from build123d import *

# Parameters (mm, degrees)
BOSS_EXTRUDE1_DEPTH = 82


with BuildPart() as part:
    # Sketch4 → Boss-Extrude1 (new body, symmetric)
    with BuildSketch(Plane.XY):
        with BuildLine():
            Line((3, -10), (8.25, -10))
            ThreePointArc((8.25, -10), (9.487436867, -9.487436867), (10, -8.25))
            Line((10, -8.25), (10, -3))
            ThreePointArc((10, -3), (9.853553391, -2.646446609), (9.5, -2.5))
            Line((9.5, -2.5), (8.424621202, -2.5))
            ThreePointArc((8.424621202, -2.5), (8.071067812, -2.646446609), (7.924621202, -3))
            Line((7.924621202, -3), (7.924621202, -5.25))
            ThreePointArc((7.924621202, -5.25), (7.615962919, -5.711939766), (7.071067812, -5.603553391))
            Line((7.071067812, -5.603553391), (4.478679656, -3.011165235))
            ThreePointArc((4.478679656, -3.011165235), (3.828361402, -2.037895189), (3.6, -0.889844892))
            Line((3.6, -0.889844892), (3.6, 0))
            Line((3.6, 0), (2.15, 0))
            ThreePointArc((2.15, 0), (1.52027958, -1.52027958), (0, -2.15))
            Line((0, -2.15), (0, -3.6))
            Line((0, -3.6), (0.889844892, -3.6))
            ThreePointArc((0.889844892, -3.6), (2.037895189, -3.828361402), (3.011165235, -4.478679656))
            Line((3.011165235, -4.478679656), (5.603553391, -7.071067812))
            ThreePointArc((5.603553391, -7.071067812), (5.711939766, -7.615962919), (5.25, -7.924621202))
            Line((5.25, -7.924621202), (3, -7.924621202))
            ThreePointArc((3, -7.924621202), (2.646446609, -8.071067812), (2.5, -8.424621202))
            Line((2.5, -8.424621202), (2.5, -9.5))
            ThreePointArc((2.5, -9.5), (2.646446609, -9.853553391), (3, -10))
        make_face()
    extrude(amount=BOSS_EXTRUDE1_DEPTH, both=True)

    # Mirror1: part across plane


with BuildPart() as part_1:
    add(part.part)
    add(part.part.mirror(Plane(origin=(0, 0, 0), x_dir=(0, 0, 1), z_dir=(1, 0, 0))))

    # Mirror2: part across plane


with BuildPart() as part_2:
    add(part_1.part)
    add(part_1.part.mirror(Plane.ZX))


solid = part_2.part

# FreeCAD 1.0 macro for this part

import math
import FreeCAD as App
import Part
import Sketcher
Q = App.Units.Quantity

doc = App.newDocument("Part")
body = doc.addObject("PartDesign::Body", "Body")

sketch1 = body.newObject("Sketcher::SketchObject", "Sketch")
sketch1.AttachmentSupport = (doc.getObject("XY_Plane"), [""])
sketch1.MapMode = "FlatFace"
sketch1.addGeometry(Part.LineSegment(App.Vector(3, -10, 0), App.Vector(8.25, -10, 0)), False)
sketch1.addGeometry(Part.ArcOfCircle(Part.Circle(App.Vector(8.25, -8.25, 0), App.Vector(0, 0, 1), 1.75), math.radians(-90), math.radians(0)), False)
sketch1.addGeometry(Part.LineSegment(App.Vector(10, -8.25, 0), App.Vector(10, -3, 0)), False)
sketch1.addGeometry(Part.ArcOfCircle(Part.Circle(App.Vector(9.5, -3, 0), App.Vector(0, 0, 1), 0.5), math.radians(0), math.radians(90)), False)
sketch1.addGeometry(Part.LineSegment(App.Vector(9.5, -2.5, 0), App.Vector(8.42, -2.5, 0)), False)
sketch1.addGeometry(Part.ArcOfCircle(Part.Circle(App.Vector(8.42, -3, 0), App.Vector(0, 0, 1), 0.5), math.radians(90), math.radians(180)), False)
sketch1.addGeometry(Part.LineSegment(App.Vector(7.92, -3, 0), App.Vector(7.92, -5.25, 0)), False)
sketch1.addGeometry(Part.ArcOfCircle(Part.Circle(App.Vector(7.42, -5.25, 0), App.Vector(0, 0, 1), 0.5), math.radians(-135), math.radians(0)), False)
sketch1.addGeometry(Part.LineSegment(App.Vector(7.07, -5.6, 0), App.Vector(4.48, -3.01, 0)), False)
sketch1.addGeometry(Part.ArcOfCircle(Part.Circle(App.Vector(6.6, -0.89, 0), App.Vector(0, 0, 1), 3), math.radians(180), math.radians(225)), False)
sketch1.addGeometry(Part.LineSegment(App.Vector(3.6, -0.89, 0), App.Vector(3.6, 0, 0)), False)
sketch1.addGeometry(Part.LineSegment(App.Vector(3.6, 0, 0), App.Vector(2.15, 0, 0)), False)
sketch1.addGeometry(Part.ArcOfCircle(Part.Circle(App.Vector(0, 0, 0), App.Vector(0, 0, 1), 2.15), math.radians(-90), math.radians(0)), False)
sketch1.addGeometry(Part.LineSegment(App.Vector(0, -2.15, 0), App.Vector(0, -3.6, 0)), False)
sketch1.addGeometry(Part.LineSegment(App.Vector(0, -3.6, 0), App.Vector(0.89, -3.6, 0)), False)
sketch1.addGeometry(Part.ArcOfCircle(Part.Circle(App.Vector(0.89, -6.6, 0), App.Vector(0, 0, 1), 3), math.radians(45), math.radians(90)), False)
sketch1.addGeometry(Part.LineSegment(App.Vector(3.01, -4.48, 0), App.Vector(5.6, -7.07, 0)), False)
sketch1.addGeometry(Part.ArcOfCircle(Part.Circle(App.Vector(5.25, -7.42, 0), App.Vector(0, 0, 1), 0.5), math.radians(-90), math.radians(45)), False)
sketch1.addGeometry(Part.LineSegment(App.Vector(5.25, -7.92, 0), App.Vector(3, -7.92, 0)), False)
sketch1.addGeometry(Part.ArcOfCircle(Part.Circle(App.Vector(3, -8.42, 0), App.Vector(0, 0, 1), 0.5), math.radians(90), math.radians(180)), False)
sketch1.addGeometry(Part.LineSegment(App.Vector(2.5, -8.42, 0), App.Vector(2.5, -9.5, 0)), False)
sketch1.addGeometry(Part.ArcOfCircle(Part.Circle(App.Vector(3, -9.5, 0), App.Vector(0, 0, 1), 0.5), math.radians(180), math.radians(270)), False)
sketch1.addConstraint(Sketcher.Constraint("Tangent", 0, 2, 1, 1))
sketch1.addConstraint(Sketcher.Constraint("Tangent", 1, 2, 2, 1))
sketch1.addConstraint(Sketcher.Constraint("Tangent", 2, 2, 3, 1))
sketch1.addConstraint(Sketcher.Constraint("Tangent", 3, 2, 4, 1))
sketch1.addConstraint(Sketcher.Constraint("Tangent", 4, 2, 5, 1))
sketch1.addConstraint(Sketcher.Constraint("Tangent", 5, 2, 6, 1))
sketch1.addConstraint(Sketcher.Constraint("Tangent", 6, 2, 7, 2))
sketch1.addConstraint(Sketcher.Constraint("Tangent", 7, 1, 8, 1))
sketch1.addConstraint(Sketcher.Constraint("Tangent", 8, 2, 9, 2))
sketch1.addConstraint(Sketcher.Constraint("Tangent", 9, 1, 10, 1))
sketch1.addConstraint(Sketcher.Constraint("Coincident", 10, 2, 11, 1))
sketch1.addConstraint(Sketcher.Constraint("Coincident", 11, 2, 12, 2))
sketch1.addConstraint(Sketcher.Constraint("Coincident", 12, 1, 13, 1))
sketch1.addConstraint(Sketcher.Constraint("Coincident", 13, 2, 14, 1))
sketch1.addConstraint(Sketcher.Constraint("Tangent", 14, 2, 15, 2))
sketch1.addConstraint(Sketcher.Constraint("Tangent", 15, 1, 16, 1))
sketch1.addConstraint(Sketcher.Constraint("Tangent", 16, 2, 17, 2))
sketch1.addConstraint(Sketcher.Constraint("Tangent", 17, 1, 18, 1))
sketch1.addConstraint(Sketcher.Constraint("Tangent", 18, 2, 19, 1))
sketch1.addConstraint(Sketcher.Constraint("Tangent", 19, 2, 20, 1))
sketch1.addConstraint(Sketcher.Constraint("Tangent", 20, 2, 21, 1))
sketch1.addConstraint(Sketcher.Constraint("Tangent", 21, 2, 0, 1))
sketch1.addConstraint(Sketcher.Constraint("Horizontal", 0))
sketch1.addConstraint(Sketcher.Constraint("Vertical", 2))
sketch1.addConstraint(Sketcher.Constraint("Horizontal", 4))
sketch1.addConstraint(Sketcher.Constraint("Vertical", 6))
sketch1.addConstraint(Sketcher.Constraint("Vertical", 10))
sketch1.addConstraint(Sketcher.Constraint("Horizontal", 11))
sketch1.addConstraint(Sketcher.Constraint("Vertical", 13))
sketch1.addConstraint(Sketcher.Constraint("Horizontal", 14))
sketch1.addConstraint(Sketcher.Constraint("Horizontal", 18))
sketch1.addConstraint(Sketcher.Constraint("Vertical", 20))
sketch1.addConstraint(Sketcher.Constraint("Coincident", 12, 3, -1, 1))
sketch1.addConstraint(Sketcher.Constraint("Equal", 3, 5))
sketch1.addConstraint(Sketcher.Constraint("Equal", 5, 7))
sketch1.addConstraint(Sketcher.Constraint("Equal", 9, 15))
sketch1.addConstraint(Sketcher.Constraint("Equal", 7, 17))
sketch1.addConstraint(Sketcher.Constraint("Equal", 17, 19))
sketch1.addConstraint(Sketcher.Constraint("Equal", 19, 21))
sketch1.addConstraint(Sketcher.Constraint("PointOnObject", 10, 2, -1))
sketch1.addConstraint(Sketcher.Constraint("PointOnObject", 12, 1, -2))
sketch1.addConstraint(Sketcher.Constraint("Parallel", 8, 16))
sketch1.addConstraint(Sketcher.Constraint("Equal", 0, 2))
sketch1.addConstraint(Sketcher.Constraint("Equal", 18, 6))
sketch1.addConstraint(Sketcher.Constraint("Equal", 14, 10))
sketch1.addConstraint(Sketcher.Constraint("Equal", 11, 13))
sketch1.addConstraint(Sketcher.Constraint("Equal", 4, 20))
sketch1.addConstraint(Sketcher.Constraint("Equal", 8, 16))
sketch1.addConstraint(Sketcher.Constraint("Radius", 9, Q("3 mm")))
sketch1.addConstraint(Sketcher.Constraint("Radius", 3, Q("0.5 mm")))
sketch1.addConstraint(Sketcher.Constraint("Radius", 1, Q("1.75 mm")))
sketch1.addConstraint(Sketcher.Constraint("Radius", 12, Q("2.15 mm")))
sketch1.addConstraint(Sketcher.Constraint("DistanceY", 3, 3, -1, 1, Q("3 mm")))
sketch1.addConstraint(Sketcher.Constraint("DistanceY", 0, 2, -1, 1, Q("10 mm")))
sketch1.addConstraint(Sketcher.Constraint("DistanceY", 1, 3, 7, 3, Q("3 mm")))
sketch1.addConstraint(Sketcher.Constraint("DistanceX", 11, 2, 11, 1, Q("1.45 mm")))
sketch1.addConstraint(Sketcher.Constraint("DistanceX", 4, 2, 4, 1, Q("1.075379 mm")))
pad1 = body.newObject("PartDesign::Pad", "Pad")
pad1.Profile = sketch1
pad1.Length = 164
pad1.Midplane = True
body2 = doc.addObject("PartDesign::Body", "Body001")
doc.recompute()

body2.BaseFeature = body
doc.recompute()

mirroring = doc.addObject("Part::Mirroring", "Mirroring")
mirroring.Source = body
mirroring.Base = App.Vector(0, 0, 0)
mirroring.Normal = App.Vector(1, 0, 0)
body3 = doc.addObject("PartDesign::Body", "Body002")
body3.BaseFeature = mirroring
boolean = body2.newObject("PartDesign::Boolean", "Boolean")
boolean.Type = "Fuse"
boolean.addObjects([body3])
doc.recompute()
body4 = doc.addObject("PartDesign::Body", "Body003")
doc.recompute()

body4.BaseFeature = body2
doc.recompute()

mirroring2 = doc.addObject("Part::Mirroring", "Mirroring001")
mirroring2.Source = body2
mirroring2.Base = App.Vector(0, 0, 0)
mirroring2.Normal = App.Vector(0, 1, 0)
body5 = doc.addObject("PartDesign::Body", "Body004")
body5.BaseFeature = mirroring2
boolean2 = body4.newObject("PartDesign::Boolean", "Boolean001")
boolean2.Type = "Fuse"
boolean2.addObjects([body5])
doc.recompute()
mirroring.Visibility = False
mirroring2.Visibility = False

doc.recompute()
